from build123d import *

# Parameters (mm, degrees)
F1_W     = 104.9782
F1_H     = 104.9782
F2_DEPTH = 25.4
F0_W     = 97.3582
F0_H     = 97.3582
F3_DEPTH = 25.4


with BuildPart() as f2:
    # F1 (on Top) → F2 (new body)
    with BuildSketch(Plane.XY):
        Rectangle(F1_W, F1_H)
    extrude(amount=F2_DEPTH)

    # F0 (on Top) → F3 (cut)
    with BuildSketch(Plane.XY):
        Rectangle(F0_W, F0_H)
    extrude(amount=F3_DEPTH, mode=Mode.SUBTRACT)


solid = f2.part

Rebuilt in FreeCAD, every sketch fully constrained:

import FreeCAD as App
import Part
import Sketcher

V = App.Vector
Q = App.Units.Quantity


def add_polygon(sketch, points):
    """Adds a closed chain of lines whose ends are joined by coincident constraints."""
    first, n = sketch.GeometryCount, len(points)
    for a, b in zip(points, points[1:] + points[:1]):
        sketch.addGeometry(Part.LineSegment(App.Vector(*a, 0), App.Vector(*b, 0)), False)
    for i in range(n):
        sketch.addConstraint(Sketcher.Constraint("Coincident", first + i, 2, first + (i + 1) % n, 1))

doc = App.newDocument("Part")
params = doc.addObject("Spreadsheet::Sheet", "Params")
for row, (alias, value) in enumerate([
    ("sketch1_width", "4.133 in"),
    ("pad1_length", "1 in"),
    ("sketch2_width", "3.833 in"),
    ("pocket1_length", "1 in"),
], start=1):
    params.set(f"A{row}", alias)
    params.set(f"B{row}", "=" + value)
    params.setAlias(f"B{row}", alias)

body = doc.addObject("PartDesign::Body", "Body")

sketch1 = doc.addObject("Sketcher::SketchObject", "Sketch")
body.addObject(sketch1)
sketch1.AttachmentSupport = (doc.XY_Plane, [""])
sketch1.MapMode = "FlatFace"
add_polygon(sketch1, [(-52.4891, 52.4891), (-52.4891, -52.4891), (52.4891, -52.4891), (52.4891, 52.4891)])
sketch1.addConstraint([
    Sketcher.Constraint("Vertical", 0),
    Sketcher.Constraint("Horizontal", 1),
    Sketcher.Constraint("Vertical", 2),
    Sketcher.Constraint("Horizontal", 3),
    Sketcher.Constraint("Symmetric", 0, 2, 2, 2, -1, 1),
    Sketcher.Constraint("Equal", 3, 0),
    Sketcher.Constraint("DistanceX", 1, 1, 1, 2, Q("4.133 in")),
])
sketch1.setExpression("Constraints[10]", "Params.sketch1_width")
pad1 = doc.addObject("PartDesign::Pad", "Pad")
body.addObject(pad1)
pad1.Profile = sketch1
pad1.setExpression("Length", "Params.pad1_length")

sketch2 = doc.addObject("Sketcher::SketchObject", "Sketch001")
body.addObject(sketch2)
sketch2.AttachmentSupport = (doc.XY_Plane, [""])
sketch2.MapMode = "FlatFace"
add_polygon(sketch2, [(-48.6791, 48.6791), (-48.6791, -48.6791), (48.6791, -48.6791), (48.6791, 48.6791)])
sketch2.addConstraint([
    Sketcher.Constraint("Vertical", 0),
    Sketcher.Constraint("Horizontal", 1),
    Sketcher.Constraint("Vertical", 2),
    Sketcher.Constraint("Horizontal", 3),
    Sketcher.Constraint("Symmetric", 0, 2, 2, 2, -1, 1),
    Sketcher.Constraint("Equal", 3, 0),
    Sketcher.Constraint("DistanceX", 1, 1, 1, 2, Q("3.833 in")),
])
sketch2.setExpression("Constraints[10]", "Params.sketch2_width")
pocket1 = doc.addObject("PartDesign::Pocket", "Pocket")
body.addObject(pocket1)
pocket1.Profile = sketch2
pocket1.setExpression("Length", "Params.pocket1_length")
pocket1.Reversed = True

doc.recompute()
